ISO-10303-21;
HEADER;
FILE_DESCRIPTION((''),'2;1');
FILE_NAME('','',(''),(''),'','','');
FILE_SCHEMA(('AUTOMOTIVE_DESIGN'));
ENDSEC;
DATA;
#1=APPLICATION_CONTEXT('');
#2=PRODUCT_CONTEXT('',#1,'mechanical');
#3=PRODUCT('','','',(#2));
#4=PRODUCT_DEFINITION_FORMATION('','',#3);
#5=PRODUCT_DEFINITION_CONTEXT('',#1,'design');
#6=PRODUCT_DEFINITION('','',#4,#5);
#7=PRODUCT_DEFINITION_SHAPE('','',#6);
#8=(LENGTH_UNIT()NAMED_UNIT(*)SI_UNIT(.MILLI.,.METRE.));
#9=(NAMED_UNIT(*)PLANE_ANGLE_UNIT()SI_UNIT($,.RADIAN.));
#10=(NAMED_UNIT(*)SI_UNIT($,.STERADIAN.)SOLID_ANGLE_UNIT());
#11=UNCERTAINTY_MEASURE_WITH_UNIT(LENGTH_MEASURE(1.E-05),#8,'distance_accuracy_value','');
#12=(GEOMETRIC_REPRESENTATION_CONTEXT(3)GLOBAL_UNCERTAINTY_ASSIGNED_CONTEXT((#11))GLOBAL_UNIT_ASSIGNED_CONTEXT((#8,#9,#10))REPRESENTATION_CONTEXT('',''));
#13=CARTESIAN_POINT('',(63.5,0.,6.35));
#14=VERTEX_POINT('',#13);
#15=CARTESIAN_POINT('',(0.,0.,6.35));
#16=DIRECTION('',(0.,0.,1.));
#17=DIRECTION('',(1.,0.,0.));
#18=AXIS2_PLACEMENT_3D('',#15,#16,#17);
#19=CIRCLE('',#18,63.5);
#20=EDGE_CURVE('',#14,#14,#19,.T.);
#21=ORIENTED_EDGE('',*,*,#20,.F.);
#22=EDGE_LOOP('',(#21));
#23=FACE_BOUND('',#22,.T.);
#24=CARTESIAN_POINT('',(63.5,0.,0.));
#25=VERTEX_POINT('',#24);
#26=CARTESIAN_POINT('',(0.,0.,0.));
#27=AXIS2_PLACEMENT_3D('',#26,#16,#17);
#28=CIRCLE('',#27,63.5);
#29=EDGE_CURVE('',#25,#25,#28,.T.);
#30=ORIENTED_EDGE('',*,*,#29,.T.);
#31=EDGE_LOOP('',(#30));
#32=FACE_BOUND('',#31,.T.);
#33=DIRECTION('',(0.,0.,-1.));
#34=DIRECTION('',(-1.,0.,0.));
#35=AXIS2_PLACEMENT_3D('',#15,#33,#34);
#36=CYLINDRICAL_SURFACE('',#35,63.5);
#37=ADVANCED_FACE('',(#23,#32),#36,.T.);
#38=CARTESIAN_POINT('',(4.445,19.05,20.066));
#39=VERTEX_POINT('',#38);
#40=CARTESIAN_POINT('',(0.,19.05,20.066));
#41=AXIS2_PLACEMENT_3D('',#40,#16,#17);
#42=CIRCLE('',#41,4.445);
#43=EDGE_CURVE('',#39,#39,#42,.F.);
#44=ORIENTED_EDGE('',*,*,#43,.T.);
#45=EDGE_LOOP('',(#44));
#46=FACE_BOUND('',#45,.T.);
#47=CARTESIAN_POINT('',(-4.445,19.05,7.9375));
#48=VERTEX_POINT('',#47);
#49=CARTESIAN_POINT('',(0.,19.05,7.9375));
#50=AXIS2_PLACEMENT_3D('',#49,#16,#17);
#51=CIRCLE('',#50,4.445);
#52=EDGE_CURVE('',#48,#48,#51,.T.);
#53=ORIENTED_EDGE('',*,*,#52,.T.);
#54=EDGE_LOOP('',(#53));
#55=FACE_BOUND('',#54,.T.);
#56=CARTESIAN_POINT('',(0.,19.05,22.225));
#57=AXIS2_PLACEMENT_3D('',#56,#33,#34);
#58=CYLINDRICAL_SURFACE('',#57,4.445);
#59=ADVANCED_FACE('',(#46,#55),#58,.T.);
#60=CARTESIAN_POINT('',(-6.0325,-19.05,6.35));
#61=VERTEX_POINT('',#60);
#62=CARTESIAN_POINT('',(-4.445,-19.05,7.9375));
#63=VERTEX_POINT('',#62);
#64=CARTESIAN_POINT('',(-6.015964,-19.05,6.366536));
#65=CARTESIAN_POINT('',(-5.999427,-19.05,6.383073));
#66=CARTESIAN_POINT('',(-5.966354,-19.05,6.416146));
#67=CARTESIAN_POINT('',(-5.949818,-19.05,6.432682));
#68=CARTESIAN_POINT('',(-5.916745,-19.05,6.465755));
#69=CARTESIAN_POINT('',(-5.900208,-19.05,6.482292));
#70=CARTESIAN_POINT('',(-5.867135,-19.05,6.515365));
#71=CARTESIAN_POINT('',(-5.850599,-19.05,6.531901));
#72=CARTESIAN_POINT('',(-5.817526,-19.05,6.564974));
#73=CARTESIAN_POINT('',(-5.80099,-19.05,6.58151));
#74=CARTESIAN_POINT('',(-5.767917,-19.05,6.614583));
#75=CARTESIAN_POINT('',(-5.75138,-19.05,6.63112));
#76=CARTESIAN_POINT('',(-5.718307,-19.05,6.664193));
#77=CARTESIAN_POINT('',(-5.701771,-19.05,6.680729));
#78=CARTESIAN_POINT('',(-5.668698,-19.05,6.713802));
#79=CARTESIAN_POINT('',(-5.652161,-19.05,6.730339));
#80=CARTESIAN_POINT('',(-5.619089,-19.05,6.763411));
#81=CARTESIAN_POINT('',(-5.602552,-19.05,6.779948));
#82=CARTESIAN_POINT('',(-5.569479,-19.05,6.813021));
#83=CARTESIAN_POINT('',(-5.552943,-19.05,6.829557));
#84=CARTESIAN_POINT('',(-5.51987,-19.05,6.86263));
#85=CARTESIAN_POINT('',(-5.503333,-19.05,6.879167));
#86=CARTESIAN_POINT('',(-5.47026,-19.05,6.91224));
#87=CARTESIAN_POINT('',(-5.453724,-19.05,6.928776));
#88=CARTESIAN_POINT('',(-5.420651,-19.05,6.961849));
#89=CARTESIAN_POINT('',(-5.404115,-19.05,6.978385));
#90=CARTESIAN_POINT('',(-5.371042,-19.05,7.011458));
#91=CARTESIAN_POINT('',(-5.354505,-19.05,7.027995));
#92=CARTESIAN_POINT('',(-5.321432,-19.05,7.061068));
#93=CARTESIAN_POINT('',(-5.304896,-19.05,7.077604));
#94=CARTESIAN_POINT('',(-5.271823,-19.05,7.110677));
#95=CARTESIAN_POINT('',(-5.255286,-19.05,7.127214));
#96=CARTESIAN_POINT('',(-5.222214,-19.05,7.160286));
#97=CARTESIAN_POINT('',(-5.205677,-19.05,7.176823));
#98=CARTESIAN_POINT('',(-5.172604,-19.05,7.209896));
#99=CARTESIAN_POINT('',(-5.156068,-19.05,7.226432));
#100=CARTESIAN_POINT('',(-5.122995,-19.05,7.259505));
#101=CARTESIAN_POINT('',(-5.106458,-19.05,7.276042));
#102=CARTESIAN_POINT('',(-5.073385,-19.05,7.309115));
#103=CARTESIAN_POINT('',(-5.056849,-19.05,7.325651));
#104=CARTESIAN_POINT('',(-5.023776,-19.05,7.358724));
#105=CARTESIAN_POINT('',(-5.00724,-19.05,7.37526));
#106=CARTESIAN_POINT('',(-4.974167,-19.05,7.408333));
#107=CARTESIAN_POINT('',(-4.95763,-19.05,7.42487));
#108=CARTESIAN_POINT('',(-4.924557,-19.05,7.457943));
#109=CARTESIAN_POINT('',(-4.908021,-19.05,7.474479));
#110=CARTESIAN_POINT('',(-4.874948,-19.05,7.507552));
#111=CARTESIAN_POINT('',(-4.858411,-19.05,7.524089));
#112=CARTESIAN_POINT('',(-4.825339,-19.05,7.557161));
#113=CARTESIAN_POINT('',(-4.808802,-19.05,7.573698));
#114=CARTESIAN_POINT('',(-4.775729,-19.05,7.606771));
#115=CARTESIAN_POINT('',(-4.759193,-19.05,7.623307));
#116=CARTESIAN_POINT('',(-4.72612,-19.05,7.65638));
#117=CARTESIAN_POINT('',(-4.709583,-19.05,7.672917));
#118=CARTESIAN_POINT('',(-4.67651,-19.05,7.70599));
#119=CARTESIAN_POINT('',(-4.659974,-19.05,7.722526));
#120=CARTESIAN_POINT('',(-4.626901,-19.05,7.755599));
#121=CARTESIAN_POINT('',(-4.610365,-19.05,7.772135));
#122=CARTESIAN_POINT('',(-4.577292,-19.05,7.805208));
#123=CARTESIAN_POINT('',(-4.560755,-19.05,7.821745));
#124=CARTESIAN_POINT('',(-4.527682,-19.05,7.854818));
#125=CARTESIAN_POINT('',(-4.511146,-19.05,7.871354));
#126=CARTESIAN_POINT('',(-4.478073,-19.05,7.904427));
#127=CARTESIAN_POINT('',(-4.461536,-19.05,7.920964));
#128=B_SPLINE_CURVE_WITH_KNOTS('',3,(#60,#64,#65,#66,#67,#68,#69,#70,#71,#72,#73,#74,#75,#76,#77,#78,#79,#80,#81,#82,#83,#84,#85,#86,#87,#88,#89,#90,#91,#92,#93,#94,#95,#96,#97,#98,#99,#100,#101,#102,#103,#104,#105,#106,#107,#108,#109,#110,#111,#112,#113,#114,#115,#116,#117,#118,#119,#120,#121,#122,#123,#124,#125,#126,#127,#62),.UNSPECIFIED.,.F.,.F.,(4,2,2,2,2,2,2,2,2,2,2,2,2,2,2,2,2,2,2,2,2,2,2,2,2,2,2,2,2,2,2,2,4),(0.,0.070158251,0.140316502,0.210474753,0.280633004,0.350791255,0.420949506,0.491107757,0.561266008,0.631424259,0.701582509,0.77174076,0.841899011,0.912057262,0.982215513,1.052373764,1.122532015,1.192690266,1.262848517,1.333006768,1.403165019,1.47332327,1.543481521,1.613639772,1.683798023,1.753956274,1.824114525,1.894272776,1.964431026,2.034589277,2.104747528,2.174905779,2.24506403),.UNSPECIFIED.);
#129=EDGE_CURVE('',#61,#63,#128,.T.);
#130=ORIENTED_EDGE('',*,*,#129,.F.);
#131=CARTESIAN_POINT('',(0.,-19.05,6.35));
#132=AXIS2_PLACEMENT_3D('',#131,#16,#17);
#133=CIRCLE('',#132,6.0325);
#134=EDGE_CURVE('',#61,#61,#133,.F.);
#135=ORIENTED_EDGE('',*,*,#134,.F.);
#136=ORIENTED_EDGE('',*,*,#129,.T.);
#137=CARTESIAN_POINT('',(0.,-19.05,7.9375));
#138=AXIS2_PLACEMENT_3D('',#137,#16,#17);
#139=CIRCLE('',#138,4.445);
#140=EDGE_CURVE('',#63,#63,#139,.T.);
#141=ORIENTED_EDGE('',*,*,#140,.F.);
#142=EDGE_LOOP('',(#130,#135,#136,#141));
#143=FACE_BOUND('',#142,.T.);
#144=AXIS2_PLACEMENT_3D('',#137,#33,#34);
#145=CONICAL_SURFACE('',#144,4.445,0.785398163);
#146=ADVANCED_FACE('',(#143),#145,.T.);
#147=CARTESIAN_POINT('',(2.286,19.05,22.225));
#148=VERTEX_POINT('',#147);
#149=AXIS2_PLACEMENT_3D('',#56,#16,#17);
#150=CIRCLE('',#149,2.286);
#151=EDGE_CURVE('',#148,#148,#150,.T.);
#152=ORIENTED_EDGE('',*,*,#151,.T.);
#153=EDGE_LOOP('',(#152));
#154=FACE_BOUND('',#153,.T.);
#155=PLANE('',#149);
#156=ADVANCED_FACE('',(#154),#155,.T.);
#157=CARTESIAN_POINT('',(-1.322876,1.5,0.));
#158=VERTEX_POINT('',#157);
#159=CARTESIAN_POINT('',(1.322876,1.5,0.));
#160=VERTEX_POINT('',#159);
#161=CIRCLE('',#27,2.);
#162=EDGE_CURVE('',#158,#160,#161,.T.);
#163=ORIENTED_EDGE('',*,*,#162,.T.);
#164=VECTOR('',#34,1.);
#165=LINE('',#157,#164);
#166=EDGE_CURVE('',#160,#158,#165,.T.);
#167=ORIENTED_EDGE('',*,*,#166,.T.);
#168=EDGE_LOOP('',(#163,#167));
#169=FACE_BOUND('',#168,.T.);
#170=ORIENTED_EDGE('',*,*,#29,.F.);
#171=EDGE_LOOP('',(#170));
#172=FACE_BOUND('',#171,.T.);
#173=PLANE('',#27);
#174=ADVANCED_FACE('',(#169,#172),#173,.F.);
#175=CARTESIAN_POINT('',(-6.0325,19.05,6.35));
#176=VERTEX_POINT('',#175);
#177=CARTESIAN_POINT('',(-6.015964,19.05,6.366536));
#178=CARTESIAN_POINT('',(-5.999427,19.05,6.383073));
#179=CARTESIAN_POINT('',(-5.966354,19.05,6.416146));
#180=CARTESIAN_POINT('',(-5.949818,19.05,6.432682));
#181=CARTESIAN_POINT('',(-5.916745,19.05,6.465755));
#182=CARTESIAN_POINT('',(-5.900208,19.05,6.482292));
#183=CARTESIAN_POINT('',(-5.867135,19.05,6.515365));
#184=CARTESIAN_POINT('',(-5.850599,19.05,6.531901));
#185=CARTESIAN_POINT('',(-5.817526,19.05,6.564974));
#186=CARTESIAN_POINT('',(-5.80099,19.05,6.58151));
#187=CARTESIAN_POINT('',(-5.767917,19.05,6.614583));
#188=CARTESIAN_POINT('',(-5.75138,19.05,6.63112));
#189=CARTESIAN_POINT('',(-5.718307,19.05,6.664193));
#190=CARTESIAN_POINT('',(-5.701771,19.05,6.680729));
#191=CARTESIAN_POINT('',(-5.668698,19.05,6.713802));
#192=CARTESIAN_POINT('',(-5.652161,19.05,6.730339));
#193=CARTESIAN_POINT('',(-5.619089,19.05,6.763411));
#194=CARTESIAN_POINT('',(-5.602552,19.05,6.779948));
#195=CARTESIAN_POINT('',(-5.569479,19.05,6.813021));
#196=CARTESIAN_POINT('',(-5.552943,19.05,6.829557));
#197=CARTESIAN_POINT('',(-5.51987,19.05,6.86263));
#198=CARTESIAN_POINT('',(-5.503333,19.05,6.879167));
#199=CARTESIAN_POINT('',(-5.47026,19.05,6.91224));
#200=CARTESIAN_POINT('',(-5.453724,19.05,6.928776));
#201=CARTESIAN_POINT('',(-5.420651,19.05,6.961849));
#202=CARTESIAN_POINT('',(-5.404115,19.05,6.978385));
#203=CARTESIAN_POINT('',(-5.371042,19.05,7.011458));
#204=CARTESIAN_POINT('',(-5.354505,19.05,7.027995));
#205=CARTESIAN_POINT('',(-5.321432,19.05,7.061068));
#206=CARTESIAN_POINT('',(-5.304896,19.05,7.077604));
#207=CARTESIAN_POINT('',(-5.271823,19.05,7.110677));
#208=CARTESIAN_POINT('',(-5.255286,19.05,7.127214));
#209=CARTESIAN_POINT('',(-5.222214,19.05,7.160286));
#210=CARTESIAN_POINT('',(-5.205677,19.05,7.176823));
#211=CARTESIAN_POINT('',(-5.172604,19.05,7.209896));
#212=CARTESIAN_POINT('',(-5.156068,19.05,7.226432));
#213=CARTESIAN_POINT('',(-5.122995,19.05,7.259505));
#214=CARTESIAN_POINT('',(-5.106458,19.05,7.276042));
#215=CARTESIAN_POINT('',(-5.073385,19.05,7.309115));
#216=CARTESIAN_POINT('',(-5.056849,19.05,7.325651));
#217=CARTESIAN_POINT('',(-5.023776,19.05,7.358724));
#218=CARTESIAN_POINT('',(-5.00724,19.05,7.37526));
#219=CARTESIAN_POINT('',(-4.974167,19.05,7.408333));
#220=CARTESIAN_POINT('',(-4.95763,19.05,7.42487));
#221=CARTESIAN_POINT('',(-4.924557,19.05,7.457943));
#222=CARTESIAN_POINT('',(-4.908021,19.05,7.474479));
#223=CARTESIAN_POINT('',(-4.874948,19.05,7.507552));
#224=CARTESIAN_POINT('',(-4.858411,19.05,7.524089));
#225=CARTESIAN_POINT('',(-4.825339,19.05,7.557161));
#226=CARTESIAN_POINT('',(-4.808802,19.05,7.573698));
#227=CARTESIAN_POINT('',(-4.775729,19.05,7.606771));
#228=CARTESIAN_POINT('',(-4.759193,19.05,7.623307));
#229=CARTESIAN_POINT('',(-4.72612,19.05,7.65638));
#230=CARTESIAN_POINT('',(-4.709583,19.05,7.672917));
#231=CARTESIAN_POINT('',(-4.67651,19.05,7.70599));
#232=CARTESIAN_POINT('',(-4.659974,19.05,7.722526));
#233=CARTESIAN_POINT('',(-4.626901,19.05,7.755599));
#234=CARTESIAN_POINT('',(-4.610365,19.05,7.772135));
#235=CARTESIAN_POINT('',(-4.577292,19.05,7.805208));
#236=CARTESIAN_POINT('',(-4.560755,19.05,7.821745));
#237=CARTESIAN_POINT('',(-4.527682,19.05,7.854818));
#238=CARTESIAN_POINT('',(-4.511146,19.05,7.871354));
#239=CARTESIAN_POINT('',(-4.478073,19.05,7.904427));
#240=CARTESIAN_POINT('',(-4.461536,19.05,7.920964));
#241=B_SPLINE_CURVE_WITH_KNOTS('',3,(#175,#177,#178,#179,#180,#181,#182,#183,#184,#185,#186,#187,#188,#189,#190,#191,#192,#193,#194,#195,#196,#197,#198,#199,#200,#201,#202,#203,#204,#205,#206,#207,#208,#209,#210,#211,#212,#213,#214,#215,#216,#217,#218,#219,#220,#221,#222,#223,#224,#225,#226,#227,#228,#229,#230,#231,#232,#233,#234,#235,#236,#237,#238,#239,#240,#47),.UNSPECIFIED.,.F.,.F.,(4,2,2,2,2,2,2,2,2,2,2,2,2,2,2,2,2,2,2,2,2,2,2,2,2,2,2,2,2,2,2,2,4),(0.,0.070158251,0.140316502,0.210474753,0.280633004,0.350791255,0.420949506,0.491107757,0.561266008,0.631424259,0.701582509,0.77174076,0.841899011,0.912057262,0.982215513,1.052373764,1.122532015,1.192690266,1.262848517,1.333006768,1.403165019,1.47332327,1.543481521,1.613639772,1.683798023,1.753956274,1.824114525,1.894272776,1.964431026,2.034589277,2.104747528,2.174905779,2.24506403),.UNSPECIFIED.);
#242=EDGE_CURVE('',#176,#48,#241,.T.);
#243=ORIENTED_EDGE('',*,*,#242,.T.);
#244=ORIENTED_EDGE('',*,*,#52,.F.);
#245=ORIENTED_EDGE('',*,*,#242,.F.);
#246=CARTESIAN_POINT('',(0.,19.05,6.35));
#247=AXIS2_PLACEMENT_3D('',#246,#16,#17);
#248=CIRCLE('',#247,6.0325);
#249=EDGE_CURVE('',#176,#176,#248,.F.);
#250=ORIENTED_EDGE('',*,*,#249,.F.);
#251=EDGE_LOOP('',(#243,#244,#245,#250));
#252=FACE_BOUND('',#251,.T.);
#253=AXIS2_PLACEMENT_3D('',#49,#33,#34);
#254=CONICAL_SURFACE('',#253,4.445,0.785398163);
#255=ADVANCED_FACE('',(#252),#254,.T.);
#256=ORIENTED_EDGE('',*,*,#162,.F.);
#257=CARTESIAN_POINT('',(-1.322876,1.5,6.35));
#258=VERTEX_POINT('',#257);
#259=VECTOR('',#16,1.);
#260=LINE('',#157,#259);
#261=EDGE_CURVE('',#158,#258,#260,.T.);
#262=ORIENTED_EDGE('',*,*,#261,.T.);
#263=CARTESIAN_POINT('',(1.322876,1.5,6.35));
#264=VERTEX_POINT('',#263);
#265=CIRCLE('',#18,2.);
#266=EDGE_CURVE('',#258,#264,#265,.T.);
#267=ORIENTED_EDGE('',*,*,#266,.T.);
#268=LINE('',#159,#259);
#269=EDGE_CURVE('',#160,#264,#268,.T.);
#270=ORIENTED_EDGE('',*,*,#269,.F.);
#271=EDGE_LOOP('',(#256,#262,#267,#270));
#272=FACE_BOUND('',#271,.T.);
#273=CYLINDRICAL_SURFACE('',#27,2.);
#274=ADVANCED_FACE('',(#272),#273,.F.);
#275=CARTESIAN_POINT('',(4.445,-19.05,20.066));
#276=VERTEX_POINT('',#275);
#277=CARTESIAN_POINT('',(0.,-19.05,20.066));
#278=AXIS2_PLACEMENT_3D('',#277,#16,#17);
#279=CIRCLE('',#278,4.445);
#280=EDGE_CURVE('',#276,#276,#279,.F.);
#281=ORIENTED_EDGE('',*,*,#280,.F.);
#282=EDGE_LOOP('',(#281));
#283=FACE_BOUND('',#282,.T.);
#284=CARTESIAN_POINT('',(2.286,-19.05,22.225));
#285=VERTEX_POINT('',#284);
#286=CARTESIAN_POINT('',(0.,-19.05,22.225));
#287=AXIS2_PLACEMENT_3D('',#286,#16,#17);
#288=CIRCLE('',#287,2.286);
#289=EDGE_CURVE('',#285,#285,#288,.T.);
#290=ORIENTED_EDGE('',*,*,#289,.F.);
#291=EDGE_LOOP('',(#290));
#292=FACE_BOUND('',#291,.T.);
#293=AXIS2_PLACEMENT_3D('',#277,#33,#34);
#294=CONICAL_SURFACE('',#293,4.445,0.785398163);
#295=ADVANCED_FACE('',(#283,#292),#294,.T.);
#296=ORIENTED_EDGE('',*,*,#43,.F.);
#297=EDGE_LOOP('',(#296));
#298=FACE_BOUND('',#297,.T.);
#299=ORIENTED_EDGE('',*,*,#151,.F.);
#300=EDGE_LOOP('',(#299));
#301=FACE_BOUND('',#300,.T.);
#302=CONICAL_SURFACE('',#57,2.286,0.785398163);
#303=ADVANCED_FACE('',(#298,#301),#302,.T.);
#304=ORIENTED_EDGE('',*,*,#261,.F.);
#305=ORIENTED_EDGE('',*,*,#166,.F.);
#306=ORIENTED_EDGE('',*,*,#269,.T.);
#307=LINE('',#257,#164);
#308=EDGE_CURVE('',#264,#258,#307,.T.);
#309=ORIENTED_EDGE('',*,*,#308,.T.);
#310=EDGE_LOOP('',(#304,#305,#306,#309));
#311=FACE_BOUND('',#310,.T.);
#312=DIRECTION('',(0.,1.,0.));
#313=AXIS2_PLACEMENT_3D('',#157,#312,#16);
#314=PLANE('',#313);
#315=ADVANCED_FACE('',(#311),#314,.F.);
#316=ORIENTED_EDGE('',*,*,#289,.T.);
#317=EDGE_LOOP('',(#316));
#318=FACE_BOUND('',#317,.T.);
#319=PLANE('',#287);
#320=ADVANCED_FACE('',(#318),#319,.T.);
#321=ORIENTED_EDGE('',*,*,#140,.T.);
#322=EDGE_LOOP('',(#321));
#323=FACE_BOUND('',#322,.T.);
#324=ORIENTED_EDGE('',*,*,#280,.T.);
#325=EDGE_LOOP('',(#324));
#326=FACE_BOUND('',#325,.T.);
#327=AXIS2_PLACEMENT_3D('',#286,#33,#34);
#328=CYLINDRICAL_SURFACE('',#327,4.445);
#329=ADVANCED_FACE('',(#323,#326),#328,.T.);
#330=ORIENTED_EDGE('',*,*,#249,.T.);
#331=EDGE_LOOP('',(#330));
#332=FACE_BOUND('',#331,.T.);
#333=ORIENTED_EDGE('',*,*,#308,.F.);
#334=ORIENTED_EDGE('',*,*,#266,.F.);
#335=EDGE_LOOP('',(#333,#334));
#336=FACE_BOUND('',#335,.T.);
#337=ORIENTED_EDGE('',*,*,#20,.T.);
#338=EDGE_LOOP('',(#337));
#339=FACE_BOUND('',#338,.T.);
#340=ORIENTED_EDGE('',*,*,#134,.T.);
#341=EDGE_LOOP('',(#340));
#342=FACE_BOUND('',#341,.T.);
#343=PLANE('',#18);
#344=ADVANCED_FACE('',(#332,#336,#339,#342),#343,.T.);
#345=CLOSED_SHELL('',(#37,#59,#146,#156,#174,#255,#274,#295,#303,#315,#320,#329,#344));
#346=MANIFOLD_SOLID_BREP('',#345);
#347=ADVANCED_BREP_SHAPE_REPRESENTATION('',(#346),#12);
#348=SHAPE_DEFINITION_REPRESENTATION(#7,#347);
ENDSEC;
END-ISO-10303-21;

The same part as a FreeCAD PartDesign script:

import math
import FreeCAD as App
import Part
import Sketcher
from FreeCAD import Vector
Q = App.Units.Quantity


def edges_at(feature, points):
    """Names of the edges that pass closest to the given points."""
    edges = feature.Shape.Edges
    near = lambda p: min(range(len(edges)), key=lambda i: edges[i].distToShape(Part.Vertex(*p))[0])
    return sorted({f"Edge{near(p) + 1}" for p in points})

doc = App.newDocument("Part")
params = doc.addObject("Spreadsheet::Sheet", "Params")
for row, (alias, value) in enumerate([
    ("sketch1_diameter", "5 in"),
    ("pad1_length", "0.25 in"),
    ("sketch3_diameter", "0.35 in"),
    ("pad2_length", "0.625 in"),
    ("chamfer_size", "0.085 in"),
    ("chamfer2_size", "0.0625 in"),
], start=1):
    params.set(f"A{row}", alias)
    params.set(f"B{row}", "=" + value)
    params.setAlias(f"B{row}", alias)

body = doc.addObject("PartDesign::Body", "Body")

# Sketch on XY plane
sketch1 = body.newObject("Sketcher::SketchObject", "Sketch")
sketch1.AttachmentSupport = (doc.getObject("XY_Plane"), [""])
sketch1.MapMode = "FlatFace"
sketch1.addGeometry(Part.Circle(Vector(0, 0, 0), Vector(0, 0, 1), 64), False)
sketch1.addConstraint(Sketcher.Constraint("Coincident", 0, 3, -1, 1))
sketch1.addConstraint(Sketcher.Constraint("Diameter", 0, Q("5 in")))
sketch1.setExpression("Constraints[1]", "Params.sketch1_diameter")
pad1 = body.newObject("PartDesign::Pad", "Pad")
pad1.Profile = sketch1
pad1.setExpression("Length", "Params.pad1_length")

# Sketch on XY plane
sketch2 = body.newObject("Sketcher::SketchObject", "Sketch001")
sketch2.AttachmentSupport = (doc.getObject("XY_Plane"), [""])
sketch2.MapMode = "FlatFace"
sketch2.AttachmentOffset = App.Placement(Vector(0, 0, 0.25 * 25.4), App.Rotation())
sketch2.addGeometry(Part.LineSegment(Vector(1.3, 1.5, 0), Vector(-1.3, 1.5, 0)), False)
sketch2.addGeometry(Part.ArcOfCircle(Part.Circle(Vector(0, 0, 0), Vector(0, 0, 1), 2), math.radians(131), math.radians(409)), False)
sketch2.addConstraint(Sketcher.Constraint("Coincident", 0, 1, 1, 2))
sketch2.addConstraint(Sketcher.Constraint("Coincident", 1, 1, 0, 2))
sketch2.addConstraint(Sketcher.Constraint("Horizontal", 0))
sketch2.addConstraint(Sketcher.Constraint("Coincident", 1, 3, -1, 1))
sketch2.addConstraint(Sketcher.Constraint("Radius", 1, 2.0))
sketch2.addConstraint(Sketcher.Constraint("DistanceX", 0, 2, 0, 1, 2.645751))
pocket1 = body.newObject("PartDesign::Pocket", "Pocket")
pocket1.Profile = sketch2
pocket1.Type = "ThroughAll"

# Sketch on XY plane
sketch3 = body.newObject("Sketcher::SketchObject", "Sketch002")
sketch3.AttachmentSupport = (doc.getObject("XY_Plane"), [""])
sketch3.MapMode = "FlatFace"
sketch3.AttachmentOffset = App.Placement(Vector(0, 0, 0.25 * 25.4), App.Rotation())
sketch3.addGeometry(Part.Circle(Vector(0, 19.1, 0), Vector(0, 0, 1), 4.4), False)
sketch3.addConstraint(Sketcher.Constraint("PointOnObject", 0, 3, -2))
sketch3.addConstraint(Sketcher.Constraint("Diameter", 0, Q("0.35 in")))
sketch3.addConstraint(Sketcher.Constraint("DistanceY", -1, 1, 0, 3, Q("0.75 in")))
sketch3.setExpression("Constraints[1]", "Params.sketch3_diameter")
pad2 = body.newObject("PartDesign::Pad", "Pad001")
pad2.Profile = sketch3
pad2.setExpression("Length", "Params.pad2_length")
doc.recompute()

mirrored = body.newObject("PartDesign::Mirrored", "Mirrored")
mirrored.Originals = [pad2]
mirrored.MirrorPlane = (doc.getObject("XZ_Plane"), [""])
body.Tip = mirrored
doc.recompute()

chamfer = body.newObject("PartDesign::Chamfer", "Chamfer")
chamfer.Base = (mirrored, edges_at(mirrored, [(-4.445, 19.05, 22.225), (-4.445, -19.05, 22.225)]))
chamfer.setExpression("Size", "Params.chamfer_size")
doc.recompute()

chamfer2 = body.newObject("PartDesign::Chamfer", "Chamfer001")
chamfer2.Base = (chamfer, edges_at(chamfer, [(-4.445, 19.05, 6.35), (-4.445, -19.05, 6.35)]))
chamfer2.setExpression("Size", "Params.chamfer2_size")

doc.recompute()
